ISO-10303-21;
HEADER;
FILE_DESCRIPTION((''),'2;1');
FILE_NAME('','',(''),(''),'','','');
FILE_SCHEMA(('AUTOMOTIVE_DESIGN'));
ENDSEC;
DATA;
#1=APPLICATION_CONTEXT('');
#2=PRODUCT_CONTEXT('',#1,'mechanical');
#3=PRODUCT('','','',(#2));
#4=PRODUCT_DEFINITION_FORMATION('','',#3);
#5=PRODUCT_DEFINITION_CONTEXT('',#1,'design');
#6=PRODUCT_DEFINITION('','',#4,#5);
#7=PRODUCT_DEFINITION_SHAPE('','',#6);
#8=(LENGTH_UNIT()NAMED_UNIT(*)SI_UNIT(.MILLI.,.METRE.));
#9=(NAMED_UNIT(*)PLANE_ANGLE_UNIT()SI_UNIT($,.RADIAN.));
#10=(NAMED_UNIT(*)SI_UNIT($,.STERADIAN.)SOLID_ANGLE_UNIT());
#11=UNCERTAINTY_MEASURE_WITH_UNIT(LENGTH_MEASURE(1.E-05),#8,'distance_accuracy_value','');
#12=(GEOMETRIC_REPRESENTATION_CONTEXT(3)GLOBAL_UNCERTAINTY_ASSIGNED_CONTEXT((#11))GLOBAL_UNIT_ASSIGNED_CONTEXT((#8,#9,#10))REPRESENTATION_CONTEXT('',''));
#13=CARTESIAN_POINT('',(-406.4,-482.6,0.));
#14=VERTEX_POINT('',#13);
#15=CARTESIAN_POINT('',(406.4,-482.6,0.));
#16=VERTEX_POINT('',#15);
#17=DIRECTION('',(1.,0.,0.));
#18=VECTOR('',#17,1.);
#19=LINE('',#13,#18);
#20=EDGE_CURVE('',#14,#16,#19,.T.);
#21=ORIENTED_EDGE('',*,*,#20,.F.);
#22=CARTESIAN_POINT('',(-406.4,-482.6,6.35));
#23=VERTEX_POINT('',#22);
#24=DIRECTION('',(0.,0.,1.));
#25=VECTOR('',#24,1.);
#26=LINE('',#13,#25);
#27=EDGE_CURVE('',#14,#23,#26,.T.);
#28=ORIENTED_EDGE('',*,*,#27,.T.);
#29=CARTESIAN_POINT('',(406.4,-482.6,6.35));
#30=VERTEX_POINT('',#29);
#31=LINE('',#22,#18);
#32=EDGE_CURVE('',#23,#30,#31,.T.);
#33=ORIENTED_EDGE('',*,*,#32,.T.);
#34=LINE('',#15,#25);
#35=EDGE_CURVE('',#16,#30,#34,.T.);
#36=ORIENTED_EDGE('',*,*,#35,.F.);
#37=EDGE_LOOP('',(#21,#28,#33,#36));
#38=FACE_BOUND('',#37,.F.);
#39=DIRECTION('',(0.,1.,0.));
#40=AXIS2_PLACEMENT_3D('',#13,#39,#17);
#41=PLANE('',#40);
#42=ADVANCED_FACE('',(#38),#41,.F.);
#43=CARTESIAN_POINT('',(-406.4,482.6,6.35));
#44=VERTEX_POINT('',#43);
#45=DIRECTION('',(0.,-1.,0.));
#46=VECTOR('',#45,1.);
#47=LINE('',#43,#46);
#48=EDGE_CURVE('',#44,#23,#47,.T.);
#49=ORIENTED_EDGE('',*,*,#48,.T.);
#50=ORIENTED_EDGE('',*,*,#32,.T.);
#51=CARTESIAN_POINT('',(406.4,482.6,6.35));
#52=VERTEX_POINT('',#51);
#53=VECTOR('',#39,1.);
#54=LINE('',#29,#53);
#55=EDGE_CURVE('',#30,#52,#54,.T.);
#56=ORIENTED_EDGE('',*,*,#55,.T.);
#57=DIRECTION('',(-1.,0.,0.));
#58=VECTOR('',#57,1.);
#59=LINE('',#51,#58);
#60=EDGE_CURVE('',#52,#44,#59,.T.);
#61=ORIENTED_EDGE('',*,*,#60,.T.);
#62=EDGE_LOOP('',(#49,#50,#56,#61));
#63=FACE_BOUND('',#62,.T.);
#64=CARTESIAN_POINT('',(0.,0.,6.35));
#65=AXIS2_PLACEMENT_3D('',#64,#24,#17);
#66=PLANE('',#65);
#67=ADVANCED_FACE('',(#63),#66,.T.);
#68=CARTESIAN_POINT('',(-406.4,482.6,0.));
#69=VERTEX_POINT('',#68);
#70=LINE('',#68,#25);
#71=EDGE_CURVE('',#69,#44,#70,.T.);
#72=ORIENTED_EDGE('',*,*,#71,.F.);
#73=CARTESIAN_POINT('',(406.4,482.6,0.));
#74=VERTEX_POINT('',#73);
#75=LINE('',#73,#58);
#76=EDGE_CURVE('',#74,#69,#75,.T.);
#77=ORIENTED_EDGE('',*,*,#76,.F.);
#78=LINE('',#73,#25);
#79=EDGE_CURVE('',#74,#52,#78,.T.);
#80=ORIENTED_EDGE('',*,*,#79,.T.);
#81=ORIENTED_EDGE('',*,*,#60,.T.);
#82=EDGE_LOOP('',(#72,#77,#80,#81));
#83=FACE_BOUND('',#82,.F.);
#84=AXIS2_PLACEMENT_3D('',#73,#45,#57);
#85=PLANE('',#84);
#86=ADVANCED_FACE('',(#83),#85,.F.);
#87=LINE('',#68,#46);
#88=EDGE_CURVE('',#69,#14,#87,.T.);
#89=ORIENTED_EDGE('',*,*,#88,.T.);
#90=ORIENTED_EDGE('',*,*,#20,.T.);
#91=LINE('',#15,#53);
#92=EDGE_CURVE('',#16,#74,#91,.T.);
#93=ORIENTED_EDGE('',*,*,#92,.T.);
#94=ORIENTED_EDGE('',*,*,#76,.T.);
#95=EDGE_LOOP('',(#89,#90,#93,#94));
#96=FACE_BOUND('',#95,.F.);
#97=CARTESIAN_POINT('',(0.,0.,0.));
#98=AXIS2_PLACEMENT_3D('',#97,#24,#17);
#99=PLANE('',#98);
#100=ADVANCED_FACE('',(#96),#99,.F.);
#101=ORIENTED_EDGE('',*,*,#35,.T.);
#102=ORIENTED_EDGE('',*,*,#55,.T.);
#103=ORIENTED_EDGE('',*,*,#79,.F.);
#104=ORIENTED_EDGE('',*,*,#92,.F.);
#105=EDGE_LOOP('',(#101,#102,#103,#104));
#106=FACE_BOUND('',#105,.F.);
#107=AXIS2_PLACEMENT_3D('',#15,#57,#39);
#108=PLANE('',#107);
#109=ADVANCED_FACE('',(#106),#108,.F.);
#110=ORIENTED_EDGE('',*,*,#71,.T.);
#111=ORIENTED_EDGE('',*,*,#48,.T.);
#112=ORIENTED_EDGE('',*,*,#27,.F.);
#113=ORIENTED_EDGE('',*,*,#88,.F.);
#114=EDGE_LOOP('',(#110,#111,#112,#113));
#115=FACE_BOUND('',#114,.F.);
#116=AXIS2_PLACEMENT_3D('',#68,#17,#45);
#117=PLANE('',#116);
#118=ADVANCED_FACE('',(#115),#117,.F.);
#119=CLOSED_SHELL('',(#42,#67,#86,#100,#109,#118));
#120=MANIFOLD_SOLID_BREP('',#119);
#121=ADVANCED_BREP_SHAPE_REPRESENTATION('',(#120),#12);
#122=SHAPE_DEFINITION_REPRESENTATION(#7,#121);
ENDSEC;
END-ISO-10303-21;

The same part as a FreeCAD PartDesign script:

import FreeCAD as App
import Part
import Sketcher
Q = App.Units.Quantity


def add_polygon(sketch, points):
    """Adds a closed chain of lines whose ends are joined by coincident constraints."""
    first, n = sketch.GeometryCount, len(points)
    for a, b in zip(points, points[1:] + points[:1]):
        sketch.addGeometry(Part.LineSegment(App.Vector(*a, 0), App.Vector(*b, 0)), False)
    for i in range(n):
        sketch.addConstraint(Sketcher.Constraint("Coincident", first + i, 2, first + (i + 1) % n, 1))

doc = App.newDocument("Part")
body = doc.addObject("PartDesign::Body", "Body")

# Sketch on XY plane
sketch1 = body.newObject("Sketcher::SketchObject", "Sketch")
sketch1.AttachmentSupport = (doc.getObject("XY_Plane"), [""])
sketch1.MapMode = "FlatFace"
add_polygon(sketch1, [(-406.4, 482.6), (-406.4, -482.6), (406.4, -482.6), (406.4, 482.6)])  # lines 0-3
sketch1.addConstraint([
    Sketcher.Constraint("Vertical", 0),
    Sketcher.Constraint("Horizontal", 1),
    Sketcher.Constraint("Vertical", 2),
    Sketcher.Constraint("Horizontal", 3),
    Sketcher.Constraint("Symmetric", 0, 2, 2, 2, -1, 1),
    Sketcher.Constraint("DistanceX", 0, 2, -1, 1, Q("16 in")),
    Sketcher.Constraint("DistanceY", 0, 2, 0, 1, Q("38 in")),
])
pad1 = body.newObject("PartDesign::Pad", "Pad")
pad1.Profile = sketch1
pad1.Length = Q("0.25 in")

doc.recompute()
